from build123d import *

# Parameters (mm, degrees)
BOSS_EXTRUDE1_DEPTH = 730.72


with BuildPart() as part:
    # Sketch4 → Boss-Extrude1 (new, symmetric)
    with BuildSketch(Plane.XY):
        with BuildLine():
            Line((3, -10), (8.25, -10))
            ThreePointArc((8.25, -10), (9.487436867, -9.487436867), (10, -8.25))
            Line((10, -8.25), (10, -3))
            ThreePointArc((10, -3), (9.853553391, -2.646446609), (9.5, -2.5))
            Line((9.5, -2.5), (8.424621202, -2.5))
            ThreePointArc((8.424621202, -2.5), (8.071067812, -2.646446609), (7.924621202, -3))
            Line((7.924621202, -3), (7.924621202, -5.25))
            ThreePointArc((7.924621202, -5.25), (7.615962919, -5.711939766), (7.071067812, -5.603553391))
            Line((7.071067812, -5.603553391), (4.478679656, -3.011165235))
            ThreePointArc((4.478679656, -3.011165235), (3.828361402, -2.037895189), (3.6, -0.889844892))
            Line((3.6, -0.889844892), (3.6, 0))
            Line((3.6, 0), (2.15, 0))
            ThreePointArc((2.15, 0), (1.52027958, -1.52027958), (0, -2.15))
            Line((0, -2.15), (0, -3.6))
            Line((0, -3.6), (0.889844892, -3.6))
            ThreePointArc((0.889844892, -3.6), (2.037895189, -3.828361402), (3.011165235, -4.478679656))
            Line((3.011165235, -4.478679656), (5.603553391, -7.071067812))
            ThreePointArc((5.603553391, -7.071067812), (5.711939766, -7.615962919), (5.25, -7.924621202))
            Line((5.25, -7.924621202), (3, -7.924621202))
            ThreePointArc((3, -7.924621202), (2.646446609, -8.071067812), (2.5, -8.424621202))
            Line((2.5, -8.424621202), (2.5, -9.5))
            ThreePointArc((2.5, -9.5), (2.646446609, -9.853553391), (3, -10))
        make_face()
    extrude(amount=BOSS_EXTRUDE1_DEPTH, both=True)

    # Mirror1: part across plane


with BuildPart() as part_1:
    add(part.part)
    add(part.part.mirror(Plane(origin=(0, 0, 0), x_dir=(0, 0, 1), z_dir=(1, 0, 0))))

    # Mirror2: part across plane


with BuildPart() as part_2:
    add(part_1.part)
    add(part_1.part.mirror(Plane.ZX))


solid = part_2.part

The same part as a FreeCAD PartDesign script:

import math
import FreeCAD as App
import Part
import Sketcher

V = App.Vector

doc = App.newDocument("Part")
body = doc.addObject("PartDesign::Body", "Body")

# Sketch on XY plane
sketch1 = doc.addObject("Sketcher::SketchObject", "Sketch")
body.addObject(sketch1)
sketch1.AttachmentSupport = (doc.XY_Plane, [""])
sketch1.MapMode = "FlatFace"
sketch1.addGeometry([
    Part.LineSegment(V(3, -10, 0), V(8.25, -10, 0)),  # 0
    Part.ArcOfCircle(Part.Circle(V(8.25, -8.25, 0), V(0, 0, 1), 1.75), math.radians(-90), math.radians(0)),  # 1
    Part.LineSegment(V(10, -8.25, 0), V(10, -3, 0)),  # 2
    Part.ArcOfCircle(Part.Circle(V(9.5, -3, 0), V(0, 0, 1), 0.5), math.radians(0), math.radians(90)),  # 3
    Part.LineSegment(V(9.5, -2.5, 0), V(8.42, -2.5, 0)),  # 4
    Part.ArcOfCircle(Part.Circle(V(8.42, -3, 0), V(0, 0, 1), 0.5), math.radians(90), math.radians(180)),  # 5
    Part.LineSegment(V(7.92, -3, 0), V(7.92, -5.25, 0)),  # 6
    Part.ArcOfCircle(Part.Circle(V(7.42, -5.25, 0), V(0, 0, 1), 0.5), math.radians(-135), math.radians(0)),  # 7
    Part.LineSegment(V(7.07, -5.6, 0), V(4.48, -3.01, 0)),  # 8
    Part.ArcOfCircle(Part.Circle(V(6.6, -0.89, 0), V(0, 0, 1), 3), math.radians(180), math.radians(225)),  # 9
    Part.LineSegment(V(3.6, -0.89, 0), V(3.6, 0, 0)),  # 10
    Part.LineSegment(V(3.6, 0, 0), V(2.15, 0, 0)),  # 11
    Part.ArcOfCircle(Part.Circle(V(0, 0, 0), V(0, 0, 1), 2.15), math.radians(-90), math.radians(0)),  # 12
    Part.LineSegment(V(0, -2.15, 0), V(0, -3.6, 0)),  # 13
    Part.LineSegment(V(0, -3.6, 0), V(0.89, -3.6, 0)),  # 14
    Part.ArcOfCircle(Part.Circle(V(0.89, -6.6, 0), V(0, 0, 1), 3), math.radians(45), math.radians(90)),  # 15
    Part.LineSegment(V(3.01, -4.48, 0), V(5.6, -7.07, 0)),  # 16
    Part.ArcOfCircle(Part.Circle(V(5.25, -7.42, 0), V(0, 0, 1), 0.5), math.radians(-90), math.radians(45)),  # 17
    Part.LineSegment(V(5.25, -7.92, 0), V(3, -7.92, 0)),  # 18
    Part.ArcOfCircle(Part.Circle(V(3, -8.42, 0), V(0, 0, 1), 0.5), math.radians(90), math.radians(180)),  # 19
    Part.LineSegment(V(2.5, -8.42, 0), V(2.5, -9.5, 0)),  # 20
    Part.ArcOfCircle(Part.Circle(V(3, -9.5, 0), V(0, 0, 1), 0.5), math.radians(180), math.radians(270)),  # 21
], False)
sketch1.addConstraint([
    Sketcher.Constraint("Tangent", 0, 2, 1, 1),
    Sketcher.Constraint("Tangent", 1, 2, 2, 1),
    Sketcher.Constraint("Tangent", 2, 2, 3, 1),
    Sketcher.Constraint("Tangent", 3, 2, 4, 1),
    Sketcher.Constraint("Tangent", 4, 2, 5, 1),
    Sketcher.Constraint("Tangent", 5, 2, 6, 1),
    Sketcher.Constraint("Tangent", 6, 2, 7, 2),
    Sketcher.Constraint("Tangent", 7, 1, 8, 1),
    Sketcher.Constraint("Tangent", 8, 2, 9, 2),
    Sketcher.Constraint("Tangent", 9, 1, 10, 1),
    Sketcher.Constraint("Coincident", 10, 2, 11, 1),
    Sketcher.Constraint("Coincident", 11, 2, 12, 2),
    Sketcher.Constraint("Coincident", 12, 1, 13, 1),
    Sketcher.Constraint("Coincident", 13, 2, 14, 1),
    Sketcher.Constraint("Tangent", 14, 2, 15, 2),
    Sketcher.Constraint("Tangent", 15, 1, 16, 1),
    Sketcher.Constraint("Tangent", 16, 2, 17, 2),
    Sketcher.Constraint("Tangent", 17, 1, 18, 1),
    Sketcher.Constraint("Tangent", 18, 2, 19, 1),
    Sketcher.Constraint("Tangent", 19, 2, 20, 1),
    Sketcher.Constraint("Tangent", 20, 2, 21, 1),
    Sketcher.Constraint("Tangent", 21, 2, 0, 1),
    Sketcher.Constraint("Horizontal", 0),
    Sketcher.Constraint("Vertical", 2),
    Sketcher.Constraint("Horizontal", 4),
    Sketcher.Constraint("Vertical", 6),
    Sketcher.Constraint("Vertical", 10),
    Sketcher.Constraint("Horizontal", 11),
    Sketcher.Constraint("Vertical", 13),
    Sketcher.Constraint("Horizontal", 14),
    Sketcher.Constraint("Horizontal", 18),
    Sketcher.Constraint("Vertical", 20),
    Sketcher.Constraint("Coincident", 12, 3, -1, 1),
    Sketcher.Constraint("Equal", 3, 5),
    Sketcher.Constraint("Equal", 5, 7),
    Sketcher.Constraint("Equal", 9, 15),
    Sketcher.Constraint("Equal", 7, 17),
    Sketcher.Constraint("Equal", 17, 19),
    Sketcher.Constraint("Equal", 19, 21),
    Sketcher.Constraint("PointOnObject", 10, 2, -1),
    Sketcher.Constraint("PointOnObject", 12, 1, -2),
    Sketcher.Constraint("Parallel", 8, 16),
    Sketcher.Constraint("Equal", 0, 2),
    Sketcher.Constraint("Equal", 18, 6),
    Sketcher.Constraint("Equal", 14, 10),
    Sketcher.Constraint("Equal", 11, 13),
    Sketcher.Constraint("Equal", 4, 20),
    Sketcher.Constraint("Equal", 8, 16),
    Sketcher.Constraint("Radius", 9, 3.0),
    Sketcher.Constraint("Radius", 3, 0.5),
    Sketcher.Constraint("Radius", 1, 1.75),
    Sketcher.Constraint("Radius", 12, 2.15),
    Sketcher.Constraint("DistanceY", 3, 3, -1, 1, 3.0),
    Sketcher.Constraint("DistanceY", 0, 2, -1, 1, 10.0),
    Sketcher.Constraint("DistanceY", 1, 3, 7, 3, 3.0),
    Sketcher.Constraint("DistanceX", 11, 2, 11, 1, 1.45),
    Sketcher.Constraint("DistanceX", 4, 2, 4, 1, 1.075379),
])
pad1 = doc.addObject("PartDesign::Pad", "Pad")
body.addObject(pad1)
pad1.Profile = sketch1
pad1.Length = 1461.44
pad1.Midplane = True
body2 = doc.addObject("PartDesign::Body", "Body001")
doc.recompute()

body2.BaseFeature = body
doc.recompute()

mirroring = doc.addObject("Part::Mirroring", "Mirroring")
mirroring.Source = body
mirroring.Base = V(0, 0, 0)
mirroring.Normal = V(1, 0, 0)
body3 = doc.addObject("PartDesign::Body", "Body002")
body3.BaseFeature = mirroring
boolean = doc.addObject("PartDesign::Boolean", "Boolean")
body2.addObject(boolean)
boolean.Type = "Fuse"
boolean.addObjects([body3])
doc.recompute()
body4 = doc.addObject("PartDesign::Body", "Body003")
doc.recompute()

body4.BaseFeature = body2
doc.recompute()

mirroring2 = doc.addObject("Part::Mirroring", "Mirroring001")
mirroring2.Source = body2
mirroring2.Base = V(0, 0, 0)
mirroring2.Normal = V(0, 1, 0)
body5 = doc.addObject("PartDesign::Body", "Body004")
body5.BaseFeature = mirroring2
boolean2 = doc.addObject("PartDesign::Boolean", "Boolean001")
body4.addObject(boolean2)
boolean2.Type = "Fuse"
boolean2.addObjects([body5])
doc.recompute()
mirroring.Visibility = False
mirroring2.Visibility = False

doc.recompute()
